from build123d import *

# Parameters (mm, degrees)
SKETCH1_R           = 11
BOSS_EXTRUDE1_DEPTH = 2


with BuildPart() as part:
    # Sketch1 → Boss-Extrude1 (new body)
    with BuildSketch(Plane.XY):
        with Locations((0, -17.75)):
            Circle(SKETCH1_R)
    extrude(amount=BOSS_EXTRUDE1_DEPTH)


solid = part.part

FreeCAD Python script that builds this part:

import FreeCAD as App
import Part
import Sketcher

V = App.Vector

doc = App.newDocument("Part")
body = doc.addObject("PartDesign::Body", "Body")

# Sketch on XY plane
sketch1 = body.newObject("Sketcher::SketchObject", "Sketch")
sketch1.AttachmentSupport = (doc.getObject("XY_Plane"), [""])
sketch1.MapMode = "FlatFace"
sketch1.addGeometry(Part.Circle(V(0, -18, 0), V(0, 0, 1), 11), False)
sketch1.addConstraint(Sketcher.Constraint("PointOnObject", 0, 3, -2))
sketch1.addConstraint(Sketcher.Constraint("Diameter", 0, 22.0))
sketch1.addConstraint(Sketcher.Constraint("DistanceY", 0, 3, -1, 1, 17.75))
pad1 = body.newObject("PartDesign::Pad", "Pad")
pad1.Profile = sketch1
pad1.Length = 2

doc.recompute()
